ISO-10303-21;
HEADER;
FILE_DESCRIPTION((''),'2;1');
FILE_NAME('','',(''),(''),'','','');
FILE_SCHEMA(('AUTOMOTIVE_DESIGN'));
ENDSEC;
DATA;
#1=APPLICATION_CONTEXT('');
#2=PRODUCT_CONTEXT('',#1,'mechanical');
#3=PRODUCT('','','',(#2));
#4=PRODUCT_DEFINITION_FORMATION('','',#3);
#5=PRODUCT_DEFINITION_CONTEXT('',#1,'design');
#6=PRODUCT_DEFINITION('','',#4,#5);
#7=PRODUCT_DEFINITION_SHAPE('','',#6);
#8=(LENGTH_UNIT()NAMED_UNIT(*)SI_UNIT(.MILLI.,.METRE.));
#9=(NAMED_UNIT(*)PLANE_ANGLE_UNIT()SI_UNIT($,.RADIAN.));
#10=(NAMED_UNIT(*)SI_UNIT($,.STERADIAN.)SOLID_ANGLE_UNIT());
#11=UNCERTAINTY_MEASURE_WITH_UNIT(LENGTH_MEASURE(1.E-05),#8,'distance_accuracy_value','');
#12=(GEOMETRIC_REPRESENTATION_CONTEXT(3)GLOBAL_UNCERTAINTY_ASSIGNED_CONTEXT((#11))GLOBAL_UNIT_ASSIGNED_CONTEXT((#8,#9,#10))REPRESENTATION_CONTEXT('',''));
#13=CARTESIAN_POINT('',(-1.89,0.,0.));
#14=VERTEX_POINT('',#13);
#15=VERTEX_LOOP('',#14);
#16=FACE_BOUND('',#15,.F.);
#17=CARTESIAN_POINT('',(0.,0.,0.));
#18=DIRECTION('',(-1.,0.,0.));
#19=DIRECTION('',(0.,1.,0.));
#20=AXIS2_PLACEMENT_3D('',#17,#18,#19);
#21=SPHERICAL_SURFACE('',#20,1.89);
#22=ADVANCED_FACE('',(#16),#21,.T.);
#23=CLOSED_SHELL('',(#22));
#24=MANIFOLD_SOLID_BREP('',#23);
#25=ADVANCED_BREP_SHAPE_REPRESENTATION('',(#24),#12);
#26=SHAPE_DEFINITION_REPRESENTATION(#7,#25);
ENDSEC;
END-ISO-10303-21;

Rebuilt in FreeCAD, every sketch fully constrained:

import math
import FreeCAD as App
import Part
import Sketcher

V = App.Vector
Q = App.Units.Quantity

doc = App.newDocument("Part")
body = doc.addObject("PartDesign::Body", "Body")

# Sketch on XY plane
sketch1 = body.newObject("Sketcher::SketchObject", "Sketch")
sketch1.AttachmentSupport = (doc.getObject("XY_Plane"), [""])
sketch1.MapMode = "FlatFace"
sketch1.addGeometry([
    Part.LineSegment(V(-1.9, 0, 0), V(1.9, 0, 0)),
    Part.ArcOfCircle(Part.Circle(V(0, 0, 0), V(0, 0, 1), 1.9), math.radians(0), math.radians(180)),
], False)
sketch1.addConstraint([
    Sketcher.Constraint("Coincident", 0, 1, 1, 2),
    Sketcher.Constraint("Coincident", 1, 1, 0, 2),
    Sketcher.Constraint("Horizontal", 0),
    Sketcher.Constraint("Coincident", 1, 3, -1, 1),
    Sketcher.Constraint("PointOnObject", 0, 1, -1),
    Sketcher.Constraint("Radius", 1, Q("1.89 mm")),
])
revolution = body.newObject("PartDesign::Revolution", "Revolution")
revolution.Profile = sketch1
revolution.ReferenceAxis = (sketch1, ["H_Axis"])
revolution.Angle = 360

doc.recompute()
